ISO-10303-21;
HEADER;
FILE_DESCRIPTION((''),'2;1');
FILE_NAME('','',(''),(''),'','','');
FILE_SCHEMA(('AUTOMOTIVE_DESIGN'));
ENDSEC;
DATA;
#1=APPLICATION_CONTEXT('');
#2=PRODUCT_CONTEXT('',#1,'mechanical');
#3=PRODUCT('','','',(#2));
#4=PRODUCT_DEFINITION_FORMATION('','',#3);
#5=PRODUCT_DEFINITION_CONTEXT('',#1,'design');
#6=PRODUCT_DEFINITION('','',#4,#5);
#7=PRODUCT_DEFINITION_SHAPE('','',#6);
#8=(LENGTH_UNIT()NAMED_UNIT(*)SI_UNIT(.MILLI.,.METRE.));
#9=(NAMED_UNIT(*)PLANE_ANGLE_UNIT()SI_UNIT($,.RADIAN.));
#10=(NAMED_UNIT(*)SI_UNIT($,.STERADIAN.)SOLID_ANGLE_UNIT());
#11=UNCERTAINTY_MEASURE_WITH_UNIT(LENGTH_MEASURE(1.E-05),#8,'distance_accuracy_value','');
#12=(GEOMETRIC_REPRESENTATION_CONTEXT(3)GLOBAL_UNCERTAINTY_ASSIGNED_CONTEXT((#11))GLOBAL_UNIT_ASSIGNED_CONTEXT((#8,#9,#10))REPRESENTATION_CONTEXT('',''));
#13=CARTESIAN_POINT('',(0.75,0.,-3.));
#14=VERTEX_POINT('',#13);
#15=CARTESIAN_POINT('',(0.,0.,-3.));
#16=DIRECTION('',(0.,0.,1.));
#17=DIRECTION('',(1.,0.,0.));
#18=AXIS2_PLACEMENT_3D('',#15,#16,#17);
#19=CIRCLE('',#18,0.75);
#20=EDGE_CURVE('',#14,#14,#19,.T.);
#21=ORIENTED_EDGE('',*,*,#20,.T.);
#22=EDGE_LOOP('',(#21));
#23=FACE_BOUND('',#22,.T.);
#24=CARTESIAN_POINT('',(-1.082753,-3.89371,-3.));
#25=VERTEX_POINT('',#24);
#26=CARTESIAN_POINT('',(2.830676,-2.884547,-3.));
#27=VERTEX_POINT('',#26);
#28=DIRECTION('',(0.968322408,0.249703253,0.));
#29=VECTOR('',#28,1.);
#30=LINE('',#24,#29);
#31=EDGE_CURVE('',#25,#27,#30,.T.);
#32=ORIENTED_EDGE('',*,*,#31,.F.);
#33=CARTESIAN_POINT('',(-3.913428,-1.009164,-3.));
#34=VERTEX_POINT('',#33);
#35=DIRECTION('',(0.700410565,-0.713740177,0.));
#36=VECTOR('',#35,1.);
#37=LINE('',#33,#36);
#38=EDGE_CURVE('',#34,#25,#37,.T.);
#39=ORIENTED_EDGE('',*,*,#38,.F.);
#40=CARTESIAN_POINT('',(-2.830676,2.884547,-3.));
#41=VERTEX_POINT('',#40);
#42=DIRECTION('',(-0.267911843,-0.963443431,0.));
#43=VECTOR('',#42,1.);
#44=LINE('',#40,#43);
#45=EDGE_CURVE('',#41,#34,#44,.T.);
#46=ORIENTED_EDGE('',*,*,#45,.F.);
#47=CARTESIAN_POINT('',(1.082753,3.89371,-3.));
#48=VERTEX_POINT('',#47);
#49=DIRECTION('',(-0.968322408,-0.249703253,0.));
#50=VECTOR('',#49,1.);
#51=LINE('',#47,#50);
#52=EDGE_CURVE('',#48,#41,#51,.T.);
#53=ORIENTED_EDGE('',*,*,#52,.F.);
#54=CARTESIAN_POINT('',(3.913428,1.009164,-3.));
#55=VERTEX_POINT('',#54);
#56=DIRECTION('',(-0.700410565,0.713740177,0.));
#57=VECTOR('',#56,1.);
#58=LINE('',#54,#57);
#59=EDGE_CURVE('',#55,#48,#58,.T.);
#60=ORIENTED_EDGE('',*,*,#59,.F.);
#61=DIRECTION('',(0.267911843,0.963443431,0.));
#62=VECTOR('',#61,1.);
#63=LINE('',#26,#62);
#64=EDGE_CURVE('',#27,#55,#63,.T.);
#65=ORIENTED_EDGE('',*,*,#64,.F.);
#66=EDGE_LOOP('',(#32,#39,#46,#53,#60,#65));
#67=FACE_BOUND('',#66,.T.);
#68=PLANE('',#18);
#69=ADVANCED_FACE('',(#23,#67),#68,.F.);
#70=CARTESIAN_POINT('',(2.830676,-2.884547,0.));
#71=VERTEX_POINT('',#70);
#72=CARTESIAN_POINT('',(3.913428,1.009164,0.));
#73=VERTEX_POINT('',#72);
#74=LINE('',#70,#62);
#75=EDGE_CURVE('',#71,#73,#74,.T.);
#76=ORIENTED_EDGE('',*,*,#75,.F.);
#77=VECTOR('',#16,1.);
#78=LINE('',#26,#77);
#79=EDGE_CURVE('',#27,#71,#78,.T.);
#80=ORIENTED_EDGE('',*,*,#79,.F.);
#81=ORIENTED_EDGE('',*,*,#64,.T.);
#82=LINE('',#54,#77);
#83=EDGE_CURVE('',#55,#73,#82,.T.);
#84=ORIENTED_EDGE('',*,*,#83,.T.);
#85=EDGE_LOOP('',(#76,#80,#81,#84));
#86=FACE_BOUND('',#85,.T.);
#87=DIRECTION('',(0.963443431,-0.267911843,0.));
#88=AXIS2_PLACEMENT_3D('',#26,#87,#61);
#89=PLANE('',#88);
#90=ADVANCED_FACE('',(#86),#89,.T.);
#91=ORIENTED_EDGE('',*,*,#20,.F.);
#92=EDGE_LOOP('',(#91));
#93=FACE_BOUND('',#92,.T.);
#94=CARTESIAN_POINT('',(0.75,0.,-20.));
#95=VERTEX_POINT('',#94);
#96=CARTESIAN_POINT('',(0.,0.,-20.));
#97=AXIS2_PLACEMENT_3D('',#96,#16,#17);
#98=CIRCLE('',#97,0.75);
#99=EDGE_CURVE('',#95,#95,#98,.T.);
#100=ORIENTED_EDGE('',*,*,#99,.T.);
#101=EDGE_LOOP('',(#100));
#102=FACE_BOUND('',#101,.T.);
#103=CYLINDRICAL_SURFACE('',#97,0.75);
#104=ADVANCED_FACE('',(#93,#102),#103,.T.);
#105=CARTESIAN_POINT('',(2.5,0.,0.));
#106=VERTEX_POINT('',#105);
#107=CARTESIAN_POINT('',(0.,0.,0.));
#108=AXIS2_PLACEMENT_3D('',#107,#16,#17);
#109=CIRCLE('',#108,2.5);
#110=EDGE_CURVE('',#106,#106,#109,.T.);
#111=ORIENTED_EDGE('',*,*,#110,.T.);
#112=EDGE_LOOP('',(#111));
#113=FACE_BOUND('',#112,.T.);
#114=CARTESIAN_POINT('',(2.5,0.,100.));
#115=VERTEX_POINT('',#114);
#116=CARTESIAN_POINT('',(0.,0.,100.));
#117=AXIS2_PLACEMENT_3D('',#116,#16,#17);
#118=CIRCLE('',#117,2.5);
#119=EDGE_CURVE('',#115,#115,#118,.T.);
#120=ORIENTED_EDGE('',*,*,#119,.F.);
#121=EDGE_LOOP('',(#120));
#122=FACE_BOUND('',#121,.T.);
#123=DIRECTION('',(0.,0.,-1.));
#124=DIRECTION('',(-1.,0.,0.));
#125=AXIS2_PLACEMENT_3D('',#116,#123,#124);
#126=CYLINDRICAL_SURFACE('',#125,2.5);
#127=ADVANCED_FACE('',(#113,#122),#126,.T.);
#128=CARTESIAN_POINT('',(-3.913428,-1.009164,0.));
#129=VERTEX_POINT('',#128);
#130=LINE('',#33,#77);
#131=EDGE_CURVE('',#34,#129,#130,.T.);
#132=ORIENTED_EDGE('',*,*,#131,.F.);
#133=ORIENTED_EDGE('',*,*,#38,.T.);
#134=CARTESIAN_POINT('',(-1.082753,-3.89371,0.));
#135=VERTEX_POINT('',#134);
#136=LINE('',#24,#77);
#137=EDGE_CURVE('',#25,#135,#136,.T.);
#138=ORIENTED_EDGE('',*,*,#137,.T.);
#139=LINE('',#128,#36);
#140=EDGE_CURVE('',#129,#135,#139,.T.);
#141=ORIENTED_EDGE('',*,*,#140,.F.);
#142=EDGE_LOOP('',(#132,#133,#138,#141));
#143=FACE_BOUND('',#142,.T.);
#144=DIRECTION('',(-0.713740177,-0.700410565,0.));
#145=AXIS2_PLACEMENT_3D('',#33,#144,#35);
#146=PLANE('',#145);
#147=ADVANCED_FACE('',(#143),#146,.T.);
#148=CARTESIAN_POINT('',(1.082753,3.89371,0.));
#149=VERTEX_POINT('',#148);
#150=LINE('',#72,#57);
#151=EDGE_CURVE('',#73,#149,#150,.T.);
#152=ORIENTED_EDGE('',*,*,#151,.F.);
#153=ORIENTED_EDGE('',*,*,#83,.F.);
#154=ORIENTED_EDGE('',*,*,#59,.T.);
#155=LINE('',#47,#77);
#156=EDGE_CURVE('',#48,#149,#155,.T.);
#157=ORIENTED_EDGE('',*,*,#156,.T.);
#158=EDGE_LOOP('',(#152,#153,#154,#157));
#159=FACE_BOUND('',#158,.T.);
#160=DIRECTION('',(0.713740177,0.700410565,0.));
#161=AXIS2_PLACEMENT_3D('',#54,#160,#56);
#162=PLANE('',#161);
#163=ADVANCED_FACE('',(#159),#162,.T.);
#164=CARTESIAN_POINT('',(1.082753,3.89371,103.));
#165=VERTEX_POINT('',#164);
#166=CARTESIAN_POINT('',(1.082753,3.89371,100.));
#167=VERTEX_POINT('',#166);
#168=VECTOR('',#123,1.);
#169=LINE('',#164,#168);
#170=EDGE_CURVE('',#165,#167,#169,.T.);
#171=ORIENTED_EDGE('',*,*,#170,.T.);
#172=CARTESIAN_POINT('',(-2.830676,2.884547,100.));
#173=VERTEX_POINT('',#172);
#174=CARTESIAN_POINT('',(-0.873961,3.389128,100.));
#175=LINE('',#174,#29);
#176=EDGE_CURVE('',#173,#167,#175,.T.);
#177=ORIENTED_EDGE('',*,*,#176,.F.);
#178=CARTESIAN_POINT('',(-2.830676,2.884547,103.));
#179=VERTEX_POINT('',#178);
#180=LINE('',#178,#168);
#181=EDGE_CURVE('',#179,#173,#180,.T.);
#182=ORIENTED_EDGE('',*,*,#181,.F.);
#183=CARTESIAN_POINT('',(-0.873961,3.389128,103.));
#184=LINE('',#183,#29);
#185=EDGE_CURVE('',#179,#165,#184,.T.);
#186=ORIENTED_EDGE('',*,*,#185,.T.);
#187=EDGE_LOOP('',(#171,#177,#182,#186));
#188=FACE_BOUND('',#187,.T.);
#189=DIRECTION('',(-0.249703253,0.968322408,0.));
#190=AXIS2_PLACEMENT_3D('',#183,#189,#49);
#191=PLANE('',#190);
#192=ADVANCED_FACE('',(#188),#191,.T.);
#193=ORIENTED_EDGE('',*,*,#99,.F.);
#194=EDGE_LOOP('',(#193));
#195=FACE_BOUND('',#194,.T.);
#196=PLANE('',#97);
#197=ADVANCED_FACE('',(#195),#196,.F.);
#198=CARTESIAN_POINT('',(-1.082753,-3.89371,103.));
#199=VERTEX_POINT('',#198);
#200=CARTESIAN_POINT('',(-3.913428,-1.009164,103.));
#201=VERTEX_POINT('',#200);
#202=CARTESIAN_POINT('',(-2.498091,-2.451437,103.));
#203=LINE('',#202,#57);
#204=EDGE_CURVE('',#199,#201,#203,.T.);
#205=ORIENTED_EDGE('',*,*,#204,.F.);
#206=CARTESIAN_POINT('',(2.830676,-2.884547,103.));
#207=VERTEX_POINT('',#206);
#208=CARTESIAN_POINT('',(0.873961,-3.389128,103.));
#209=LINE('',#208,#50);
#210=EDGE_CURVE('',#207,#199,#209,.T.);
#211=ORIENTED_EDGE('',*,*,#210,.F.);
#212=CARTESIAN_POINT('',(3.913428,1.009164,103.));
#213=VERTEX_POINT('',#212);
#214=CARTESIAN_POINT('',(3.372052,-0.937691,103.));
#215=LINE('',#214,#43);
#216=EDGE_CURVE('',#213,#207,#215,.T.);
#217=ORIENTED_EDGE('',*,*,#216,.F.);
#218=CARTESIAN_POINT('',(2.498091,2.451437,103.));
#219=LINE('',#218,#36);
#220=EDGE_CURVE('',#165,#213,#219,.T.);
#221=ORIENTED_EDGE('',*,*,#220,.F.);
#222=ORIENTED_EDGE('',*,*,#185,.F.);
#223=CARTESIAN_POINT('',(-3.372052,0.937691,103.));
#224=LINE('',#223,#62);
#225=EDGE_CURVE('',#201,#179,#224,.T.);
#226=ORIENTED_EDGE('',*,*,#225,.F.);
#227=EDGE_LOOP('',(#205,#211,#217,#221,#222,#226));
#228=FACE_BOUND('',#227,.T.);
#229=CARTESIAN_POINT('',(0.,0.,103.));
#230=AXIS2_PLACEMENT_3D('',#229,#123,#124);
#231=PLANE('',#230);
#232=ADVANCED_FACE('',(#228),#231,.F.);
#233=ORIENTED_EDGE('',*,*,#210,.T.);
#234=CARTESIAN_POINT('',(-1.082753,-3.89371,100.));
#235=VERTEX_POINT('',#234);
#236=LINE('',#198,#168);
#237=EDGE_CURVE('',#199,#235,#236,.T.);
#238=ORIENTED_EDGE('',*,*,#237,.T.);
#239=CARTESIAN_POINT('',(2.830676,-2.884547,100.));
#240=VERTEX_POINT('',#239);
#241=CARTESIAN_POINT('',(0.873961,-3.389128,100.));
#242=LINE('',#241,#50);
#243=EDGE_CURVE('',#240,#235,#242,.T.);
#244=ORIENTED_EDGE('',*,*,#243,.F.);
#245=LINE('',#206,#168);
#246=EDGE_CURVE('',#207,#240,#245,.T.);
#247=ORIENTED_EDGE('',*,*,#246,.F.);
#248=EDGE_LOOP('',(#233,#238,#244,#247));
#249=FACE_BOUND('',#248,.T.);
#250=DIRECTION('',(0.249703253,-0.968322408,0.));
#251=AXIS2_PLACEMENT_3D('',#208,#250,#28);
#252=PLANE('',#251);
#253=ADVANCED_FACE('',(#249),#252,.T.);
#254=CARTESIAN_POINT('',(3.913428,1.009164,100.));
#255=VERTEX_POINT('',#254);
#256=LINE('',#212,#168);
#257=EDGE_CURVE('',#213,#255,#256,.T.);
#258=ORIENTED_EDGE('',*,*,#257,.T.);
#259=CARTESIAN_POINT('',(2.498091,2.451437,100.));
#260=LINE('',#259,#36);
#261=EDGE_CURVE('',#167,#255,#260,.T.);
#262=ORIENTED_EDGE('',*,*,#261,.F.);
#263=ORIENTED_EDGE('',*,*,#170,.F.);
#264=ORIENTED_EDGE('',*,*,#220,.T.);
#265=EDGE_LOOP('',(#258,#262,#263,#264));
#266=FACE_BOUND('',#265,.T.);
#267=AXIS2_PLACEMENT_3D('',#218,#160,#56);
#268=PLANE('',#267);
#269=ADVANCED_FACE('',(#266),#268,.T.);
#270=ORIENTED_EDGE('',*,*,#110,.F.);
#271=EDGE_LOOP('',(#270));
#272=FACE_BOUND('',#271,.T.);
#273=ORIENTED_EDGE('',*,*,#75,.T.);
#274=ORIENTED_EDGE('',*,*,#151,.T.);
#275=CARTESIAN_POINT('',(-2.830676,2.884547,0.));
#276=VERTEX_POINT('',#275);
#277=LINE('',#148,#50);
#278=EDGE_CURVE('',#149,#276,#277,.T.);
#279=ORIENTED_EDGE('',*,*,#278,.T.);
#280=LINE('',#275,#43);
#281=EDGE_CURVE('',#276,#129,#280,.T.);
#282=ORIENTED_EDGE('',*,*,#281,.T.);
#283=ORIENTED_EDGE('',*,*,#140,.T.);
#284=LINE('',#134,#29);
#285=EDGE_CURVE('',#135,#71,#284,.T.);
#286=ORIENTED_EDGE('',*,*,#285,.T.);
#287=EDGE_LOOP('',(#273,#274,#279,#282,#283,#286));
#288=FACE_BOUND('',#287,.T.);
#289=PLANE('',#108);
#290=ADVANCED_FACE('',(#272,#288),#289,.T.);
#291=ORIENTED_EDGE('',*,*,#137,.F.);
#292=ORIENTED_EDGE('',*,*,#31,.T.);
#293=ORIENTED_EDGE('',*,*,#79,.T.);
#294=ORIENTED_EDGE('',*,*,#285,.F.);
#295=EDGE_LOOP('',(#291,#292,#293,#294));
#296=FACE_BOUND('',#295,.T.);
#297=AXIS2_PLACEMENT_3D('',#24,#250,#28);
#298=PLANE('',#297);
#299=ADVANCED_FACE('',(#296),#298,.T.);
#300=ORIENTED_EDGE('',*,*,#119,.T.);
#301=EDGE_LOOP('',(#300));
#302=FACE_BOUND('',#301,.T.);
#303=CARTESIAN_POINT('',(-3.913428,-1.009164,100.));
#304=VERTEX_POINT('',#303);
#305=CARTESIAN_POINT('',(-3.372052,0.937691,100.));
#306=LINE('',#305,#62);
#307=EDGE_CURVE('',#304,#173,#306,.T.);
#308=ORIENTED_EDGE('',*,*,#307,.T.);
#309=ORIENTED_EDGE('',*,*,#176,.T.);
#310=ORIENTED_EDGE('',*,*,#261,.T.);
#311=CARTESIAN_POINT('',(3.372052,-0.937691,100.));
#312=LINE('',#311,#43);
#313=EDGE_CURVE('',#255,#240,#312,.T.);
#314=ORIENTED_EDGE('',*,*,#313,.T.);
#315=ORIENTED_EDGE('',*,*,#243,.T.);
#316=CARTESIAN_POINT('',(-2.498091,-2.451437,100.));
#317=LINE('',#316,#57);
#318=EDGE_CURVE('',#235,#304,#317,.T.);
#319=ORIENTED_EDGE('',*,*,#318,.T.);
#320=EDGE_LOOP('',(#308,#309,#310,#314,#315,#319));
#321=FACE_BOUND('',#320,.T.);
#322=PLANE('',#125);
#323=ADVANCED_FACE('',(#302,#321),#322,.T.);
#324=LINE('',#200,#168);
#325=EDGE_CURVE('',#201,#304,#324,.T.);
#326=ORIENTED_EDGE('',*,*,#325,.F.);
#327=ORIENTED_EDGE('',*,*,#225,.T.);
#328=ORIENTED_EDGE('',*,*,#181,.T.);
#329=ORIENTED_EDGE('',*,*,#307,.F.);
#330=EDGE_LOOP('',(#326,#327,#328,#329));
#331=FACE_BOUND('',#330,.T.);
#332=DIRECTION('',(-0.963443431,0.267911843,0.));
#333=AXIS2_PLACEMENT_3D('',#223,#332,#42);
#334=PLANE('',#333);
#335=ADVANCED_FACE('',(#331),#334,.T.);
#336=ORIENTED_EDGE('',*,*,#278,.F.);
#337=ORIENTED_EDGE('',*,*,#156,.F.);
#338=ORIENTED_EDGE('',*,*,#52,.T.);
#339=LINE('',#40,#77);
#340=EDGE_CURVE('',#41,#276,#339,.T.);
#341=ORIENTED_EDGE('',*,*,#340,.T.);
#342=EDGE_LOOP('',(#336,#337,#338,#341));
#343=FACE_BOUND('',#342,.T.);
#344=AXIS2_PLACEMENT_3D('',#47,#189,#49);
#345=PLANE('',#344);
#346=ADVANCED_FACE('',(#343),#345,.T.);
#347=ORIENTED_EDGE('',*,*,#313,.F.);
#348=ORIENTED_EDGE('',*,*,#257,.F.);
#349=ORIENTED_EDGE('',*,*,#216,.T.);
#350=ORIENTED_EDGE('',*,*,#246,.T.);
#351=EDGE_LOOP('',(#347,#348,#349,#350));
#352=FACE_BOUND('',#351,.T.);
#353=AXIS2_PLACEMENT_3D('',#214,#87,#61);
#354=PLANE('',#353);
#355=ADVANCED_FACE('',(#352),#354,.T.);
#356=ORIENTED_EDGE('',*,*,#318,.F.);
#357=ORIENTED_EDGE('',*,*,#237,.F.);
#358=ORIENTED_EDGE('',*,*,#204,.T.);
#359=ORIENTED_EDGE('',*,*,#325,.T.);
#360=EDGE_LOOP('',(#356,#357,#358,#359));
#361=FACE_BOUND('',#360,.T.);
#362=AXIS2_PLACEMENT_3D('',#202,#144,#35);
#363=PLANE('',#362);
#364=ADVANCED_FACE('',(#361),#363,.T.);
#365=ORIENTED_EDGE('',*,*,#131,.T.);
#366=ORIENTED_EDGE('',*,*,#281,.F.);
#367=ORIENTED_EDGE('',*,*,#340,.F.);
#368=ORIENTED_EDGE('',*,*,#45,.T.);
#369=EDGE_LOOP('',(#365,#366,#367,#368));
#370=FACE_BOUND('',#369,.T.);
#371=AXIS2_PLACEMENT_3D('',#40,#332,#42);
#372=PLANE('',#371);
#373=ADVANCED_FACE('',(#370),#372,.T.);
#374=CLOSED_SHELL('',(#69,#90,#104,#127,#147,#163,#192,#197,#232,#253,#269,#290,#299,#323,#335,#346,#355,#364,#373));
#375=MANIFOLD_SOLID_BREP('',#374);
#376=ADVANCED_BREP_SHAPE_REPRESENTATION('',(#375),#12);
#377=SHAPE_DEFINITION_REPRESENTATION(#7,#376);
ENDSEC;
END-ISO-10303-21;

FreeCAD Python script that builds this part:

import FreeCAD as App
import Part
import Sketcher
Q = App.Units.Quantity

doc = App.newDocument("Part")
body = doc.addObject("PartDesign::Body", "Body")

sketch1 = body.newObject("Sketcher::SketchObject", "Sketch")
sketch1.AttachmentSupport = (doc.getObject("XY_Plane"), [""])
sketch1.MapMode = "FlatFace"
sketch1.addGeometry(Part.Circle(App.Vector(0, 0, 0), App.Vector(0, 0, 1), 2.5), False)
sketch1.addConstraint(Sketcher.Constraint("Coincident", 0, 3, -1, 1))
sketch1.addConstraint(Sketcher.Constraint("Diameter", 0, Q("5 mm")))
pad1 = body.newObject("PartDesign::Pad", "Pad")
pad1.Profile = sketch1
pad1.Length = 100

sketch2 = body.newObject("Sketcher::SketchObject", "Sketch001")
sketch2.AttachmentSupport = (doc.getObject("XY_Plane"), [""])
sketch2.MapMode = "FlatFace"
sketch2.addGeometry(Part.LineSegment(App.Vector(1.1, 3.9, 0), App.Vector(-2.8, 2.9, 0)), False)
sketch2.addGeometry(Part.LineSegment(App.Vector(-2.8, 2.9, 0), App.Vector(-3.9, -1, 0)), False)
sketch2.addGeometry(Part.LineSegment(App.Vector(-3.9, -1, 0), App.Vector(-1.1, -3.9, 0)), False)
sketch2.addGeometry(Part.LineSegment(App.Vector(-1.1, -3.9, 0), App.Vector(2.8, -2.9, 0)), False)
sketch2.addGeometry(Part.LineSegment(App.Vector(2.8, -2.9, 0), App.Vector(3.9, 1, 0)), False)
sketch2.addGeometry(Part.LineSegment(App.Vector(3.9, 1, 0), App.Vector(1.1, 3.9, 0)), False)
sketch2.addConstraint(Sketcher.Constraint("Coincident", 0, 2, 1, 1))
sketch2.addConstraint(Sketcher.Constraint("Coincident", 1, 2, 2, 1))
sketch2.addConstraint(Sketcher.Constraint("Coincident", 2, 2, 3, 1))
sketch2.addConstraint(Sketcher.Constraint("Coincident", 3, 2, 4, 1))
sketch2.addConstraint(Sketcher.Constraint("Coincident", 4, 2, 5, 1))
sketch2.addConstraint(Sketcher.Constraint("Coincident", 5, 2, 0, 1))
sketch2.addConstraint(Sketcher.Constraint("Symmetric", 0, 2, 3, 2, -1, 1))
sketch2.addConstraint(Sketcher.Constraint("Symmetric", 1, 2, 4, 2, -1, 1))
sketch2.addConstraint(Sketcher.Constraint("Symmetric", 2, 2, 5, 2, -1, 1))
sketch2.addConstraint(Sketcher.Constraint("Equal", 0, 1))
sketch2.addConstraint(Sketcher.Constraint("Equal", 1, 2))
sketch2.addConstraint(Sketcher.Constraint("Distance", 0, Q("4.041452 mm")))
sketch2.addConstraint(Sketcher.Constraint("DistanceX", 1, 2, -1, 1, Q("3.913428 mm")))
sketch2.addConstraint(Sketcher.Constraint("DistanceY", 2, 2, -1, 1, Q("3.89371 mm")))
sketch2.addConstraint(Sketcher.Constraint("DistanceY", 1, 2, 0, 2, Q("3.89371 mm")))
pad2 = body.newObject("PartDesign::Pad", "Pad001")
pad2.Profile = sketch2
pad2.Length = 3
pad2.Reversed = True

sketch3 = body.newObject("Sketcher::SketchObject", "Sketch002")
sketch3.AttachmentSupport = (doc.getObject("XY_Plane"), [""])
sketch3.MapMode = "FlatFace"
sketch3.AttachmentOffset = App.Placement(App.Vector(0, 0, 100), App.Rotation())
sketch3.addGeometry(Part.LineSegment(App.Vector(-2.8, 2.9, 0), App.Vector(-3.9, -1, 0)), False)
sketch3.addGeometry(Part.LineSegment(App.Vector(-3.9, -1, 0), App.Vector(-1.1, -3.9, 0)), False)
sketch3.addGeometry(Part.LineSegment(App.Vector(-1.1, -3.9, 0), App.Vector(2.8, -2.9, 0)), False)
sketch3.addGeometry(Part.LineSegment(App.Vector(2.8, -2.9, 0), App.Vector(3.9, 1, 0)), False)
sketch3.addGeometry(Part.LineSegment(App.Vector(3.9, 1, 0), App.Vector(1.1, 3.9, 0)), False)
sketch3.addGeometry(Part.LineSegment(App.Vector(1.1, 3.9, 0), App.Vector(-2.8, 2.9, 0)), False)
sketch3.addConstraint(Sketcher.Constraint("Coincident", 0, 2, 1, 1))
sketch3.addConstraint(Sketcher.Constraint("Coincident", 1, 2, 2, 1))
sketch3.addConstraint(Sketcher.Constraint("Coincident", 2, 2, 3, 1))
sketch3.addConstraint(Sketcher.Constraint("Coincident", 3, 2, 4, 1))
sketch3.addConstraint(Sketcher.Constraint("Coincident", 4, 2, 5, 1))
sketch3.addConstraint(Sketcher.Constraint("Coincident", 5, 2, 0, 1))
sketch3.addConstraint(Sketcher.Constraint("Symmetric", 0, 2, 3, 2, -1, 1))
sketch3.addConstraint(Sketcher.Constraint("Symmetric", 1, 2, 4, 2, -1, 1))
sketch3.addConstraint(Sketcher.Constraint("Symmetric", 2, 2, 5, 2, -1, 1))
sketch3.addConstraint(Sketcher.Constraint("Equal", 0, 1))
sketch3.addConstraint(Sketcher.Constraint("Equal", 1, 2))
sketch3.addConstraint(Sketcher.Constraint("Distance", 0, Q("4.041452 mm")))
sketch3.addConstraint(Sketcher.Constraint("DistanceX", 0, 2, -1, 1, Q("3.913428 mm")))
sketch3.addConstraint(Sketcher.Constraint("DistanceY", 1, 2, -1, 1, Q("3.89371 mm")))
sketch3.addConstraint(Sketcher.Constraint("DistanceX", 1, 2, 2, 2, Q("3.913428 mm")))
pad3 = body.newObject("PartDesign::Pad", "Pad002")
pad3.Profile = sketch3
pad3.Length = 3

sketch4 = body.newObject("Sketcher::SketchObject", "Sketch003")
sketch4.AttachmentSupport = (doc.getObject("XY_Plane"), [""])
sketch4.MapMode = "FlatFace"
sketch4.addGeometry(Part.Circle(App.Vector(0, 0, 0), App.Vector(0, 0, 1), 0.8), False)
sketch4.addConstraint(Sketcher.Constraint("Coincident", 0, 3, -1, 1))
sketch4.addConstraint(Sketcher.Constraint("Diameter", 0, Q("1.5 mm")))
pad4 = body.newObject("PartDesign::Pad", "Pad003")
pad4.Profile = sketch4
pad4.Length = 20
pad4.Reversed = True

doc.recompute()
